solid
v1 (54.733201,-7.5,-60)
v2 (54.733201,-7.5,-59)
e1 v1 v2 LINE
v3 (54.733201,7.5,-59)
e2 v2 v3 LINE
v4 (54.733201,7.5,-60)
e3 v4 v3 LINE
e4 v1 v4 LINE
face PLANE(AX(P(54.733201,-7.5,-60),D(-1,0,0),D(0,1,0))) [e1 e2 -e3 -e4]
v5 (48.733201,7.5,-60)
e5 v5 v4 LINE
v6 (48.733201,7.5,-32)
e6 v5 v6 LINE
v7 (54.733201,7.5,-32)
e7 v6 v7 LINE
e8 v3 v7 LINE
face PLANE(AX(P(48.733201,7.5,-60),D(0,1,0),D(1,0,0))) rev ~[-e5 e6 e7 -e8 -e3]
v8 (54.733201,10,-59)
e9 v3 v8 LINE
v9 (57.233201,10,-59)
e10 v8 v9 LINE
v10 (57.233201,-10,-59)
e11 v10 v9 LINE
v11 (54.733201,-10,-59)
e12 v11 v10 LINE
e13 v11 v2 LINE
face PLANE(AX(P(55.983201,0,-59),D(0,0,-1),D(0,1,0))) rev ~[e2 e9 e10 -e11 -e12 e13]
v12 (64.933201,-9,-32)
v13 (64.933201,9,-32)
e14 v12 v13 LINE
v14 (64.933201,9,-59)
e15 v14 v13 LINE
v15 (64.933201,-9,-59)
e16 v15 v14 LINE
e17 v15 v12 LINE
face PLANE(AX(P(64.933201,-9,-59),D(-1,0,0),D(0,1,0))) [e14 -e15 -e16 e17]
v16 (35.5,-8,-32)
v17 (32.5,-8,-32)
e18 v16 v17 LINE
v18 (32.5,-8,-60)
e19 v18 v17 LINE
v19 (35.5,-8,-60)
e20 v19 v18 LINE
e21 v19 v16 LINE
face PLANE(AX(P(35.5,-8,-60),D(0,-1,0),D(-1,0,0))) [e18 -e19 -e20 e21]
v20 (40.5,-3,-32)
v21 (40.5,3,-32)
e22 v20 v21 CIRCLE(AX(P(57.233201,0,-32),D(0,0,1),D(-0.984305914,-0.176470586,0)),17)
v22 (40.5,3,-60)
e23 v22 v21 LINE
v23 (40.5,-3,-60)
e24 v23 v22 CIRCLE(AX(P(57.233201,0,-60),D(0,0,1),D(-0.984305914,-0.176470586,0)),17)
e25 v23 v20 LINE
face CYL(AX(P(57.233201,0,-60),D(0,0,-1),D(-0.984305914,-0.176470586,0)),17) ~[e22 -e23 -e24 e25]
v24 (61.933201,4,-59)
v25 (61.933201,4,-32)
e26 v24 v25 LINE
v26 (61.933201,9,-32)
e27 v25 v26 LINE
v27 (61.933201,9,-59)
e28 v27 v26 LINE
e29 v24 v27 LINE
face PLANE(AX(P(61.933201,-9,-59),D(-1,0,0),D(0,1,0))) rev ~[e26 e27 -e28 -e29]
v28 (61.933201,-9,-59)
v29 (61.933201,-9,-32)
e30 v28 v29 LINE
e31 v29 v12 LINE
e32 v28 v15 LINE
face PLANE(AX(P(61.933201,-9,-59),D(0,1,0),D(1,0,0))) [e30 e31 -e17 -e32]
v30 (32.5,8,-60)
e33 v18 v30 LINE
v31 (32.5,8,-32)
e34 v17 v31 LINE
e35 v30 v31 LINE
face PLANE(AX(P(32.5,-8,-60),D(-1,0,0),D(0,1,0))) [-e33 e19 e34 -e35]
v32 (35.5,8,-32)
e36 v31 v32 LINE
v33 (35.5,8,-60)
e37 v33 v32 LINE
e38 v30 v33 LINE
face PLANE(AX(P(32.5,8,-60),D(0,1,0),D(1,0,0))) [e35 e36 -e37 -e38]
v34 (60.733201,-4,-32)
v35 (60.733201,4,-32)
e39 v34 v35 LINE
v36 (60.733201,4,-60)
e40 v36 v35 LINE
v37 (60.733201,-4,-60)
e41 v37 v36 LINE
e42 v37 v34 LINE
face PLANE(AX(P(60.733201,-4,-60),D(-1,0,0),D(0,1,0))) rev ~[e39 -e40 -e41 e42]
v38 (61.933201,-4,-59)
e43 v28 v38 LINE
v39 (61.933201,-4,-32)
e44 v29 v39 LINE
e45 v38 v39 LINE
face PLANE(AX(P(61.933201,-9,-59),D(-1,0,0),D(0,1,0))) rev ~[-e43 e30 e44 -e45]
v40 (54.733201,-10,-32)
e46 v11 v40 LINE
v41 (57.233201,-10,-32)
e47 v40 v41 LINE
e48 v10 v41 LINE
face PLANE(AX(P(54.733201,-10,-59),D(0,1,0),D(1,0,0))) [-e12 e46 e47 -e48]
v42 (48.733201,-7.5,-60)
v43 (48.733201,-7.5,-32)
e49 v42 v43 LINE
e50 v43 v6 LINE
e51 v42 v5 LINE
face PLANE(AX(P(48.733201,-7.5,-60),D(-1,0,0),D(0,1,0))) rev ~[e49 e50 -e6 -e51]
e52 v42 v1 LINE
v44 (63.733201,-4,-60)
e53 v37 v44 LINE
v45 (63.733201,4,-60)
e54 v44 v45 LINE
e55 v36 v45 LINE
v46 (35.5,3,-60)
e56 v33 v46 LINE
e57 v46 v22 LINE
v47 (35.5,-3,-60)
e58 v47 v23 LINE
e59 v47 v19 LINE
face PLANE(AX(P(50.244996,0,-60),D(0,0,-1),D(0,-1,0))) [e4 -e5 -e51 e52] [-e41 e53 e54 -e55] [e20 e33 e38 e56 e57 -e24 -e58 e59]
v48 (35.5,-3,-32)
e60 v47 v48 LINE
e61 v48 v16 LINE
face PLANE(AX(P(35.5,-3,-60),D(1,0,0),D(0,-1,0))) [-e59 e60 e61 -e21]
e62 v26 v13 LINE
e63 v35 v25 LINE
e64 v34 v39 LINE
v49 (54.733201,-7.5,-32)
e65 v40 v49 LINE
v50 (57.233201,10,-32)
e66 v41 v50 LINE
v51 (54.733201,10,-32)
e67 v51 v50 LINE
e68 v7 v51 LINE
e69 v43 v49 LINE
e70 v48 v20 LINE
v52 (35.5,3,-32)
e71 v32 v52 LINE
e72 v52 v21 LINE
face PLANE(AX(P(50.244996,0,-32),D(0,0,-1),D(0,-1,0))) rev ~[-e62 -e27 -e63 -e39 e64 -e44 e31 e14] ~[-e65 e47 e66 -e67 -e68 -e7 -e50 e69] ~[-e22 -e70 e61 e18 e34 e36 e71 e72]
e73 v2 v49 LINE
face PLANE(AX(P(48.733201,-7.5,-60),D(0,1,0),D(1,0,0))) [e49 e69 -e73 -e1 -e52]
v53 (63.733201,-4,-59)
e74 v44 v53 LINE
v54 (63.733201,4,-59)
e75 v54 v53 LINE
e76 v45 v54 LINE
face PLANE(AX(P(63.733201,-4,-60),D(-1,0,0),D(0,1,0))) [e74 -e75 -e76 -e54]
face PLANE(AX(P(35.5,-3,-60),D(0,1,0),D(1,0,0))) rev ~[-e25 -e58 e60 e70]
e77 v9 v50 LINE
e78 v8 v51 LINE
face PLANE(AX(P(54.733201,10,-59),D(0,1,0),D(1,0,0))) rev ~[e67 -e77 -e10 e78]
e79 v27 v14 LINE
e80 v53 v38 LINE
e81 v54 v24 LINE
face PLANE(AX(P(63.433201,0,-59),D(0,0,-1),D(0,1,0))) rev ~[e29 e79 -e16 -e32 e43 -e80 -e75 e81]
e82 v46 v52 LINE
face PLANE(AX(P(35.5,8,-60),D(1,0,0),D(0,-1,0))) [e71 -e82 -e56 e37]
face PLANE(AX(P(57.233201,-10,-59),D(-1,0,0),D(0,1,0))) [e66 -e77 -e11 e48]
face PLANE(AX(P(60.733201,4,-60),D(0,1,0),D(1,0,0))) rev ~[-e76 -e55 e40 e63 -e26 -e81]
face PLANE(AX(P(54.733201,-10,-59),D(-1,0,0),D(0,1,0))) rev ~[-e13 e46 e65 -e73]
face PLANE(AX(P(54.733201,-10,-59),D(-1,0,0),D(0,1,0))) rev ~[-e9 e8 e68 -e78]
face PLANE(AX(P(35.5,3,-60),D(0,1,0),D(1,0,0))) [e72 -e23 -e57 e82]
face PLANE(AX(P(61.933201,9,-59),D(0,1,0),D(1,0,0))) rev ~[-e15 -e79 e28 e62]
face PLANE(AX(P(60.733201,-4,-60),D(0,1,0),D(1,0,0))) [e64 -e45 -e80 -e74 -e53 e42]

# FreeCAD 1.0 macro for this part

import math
import FreeCAD as App
import Part
import Sketcher
Q = App.Units.Quantity


def add_polygon(sketch, points):
    """Adds a closed chain of lines whose ends are joined by coincident constraints."""
    first, n = sketch.GeometryCount, len(points)
    for a, b in zip(points, points[1:] + points[:1]):
        sketch.addGeometry(Part.LineSegment(App.Vector(*a, 0), App.Vector(*b, 0)), False)
    for i in range(n):
        sketch.addConstraint(Sketcher.Constraint("Coincident", first + i, 2, first + (i + 1) % n, 1))

doc = App.newDocument("Part")
body = doc.addObject("PartDesign::Body", "Body")

# Sketch on XY plane
sketch1 = body.newObject("Sketcher::SketchObject", "Sketch")
sketch1.AttachmentSupport = (doc.getObject("XY_Plane"), [""])
sketch1.MapMode = "FlatFace"
sketch1.addGeometry([
    Part.LineSegment(App.Vector(-8, -3, 0), App.Vector(-3, -3, 0)),  # 0
    Part.LineSegment(App.Vector(-3, -3, 0), App.Vector(-3, -8, 0)),  # 1
    Part.ArcOfCircle(Part.Circle(App.Vector(0, -24.7, 0), App.Vector(0, 0, 1), 17), math.radians(100), math.radians(440)),  # 2
    Part.LineSegment(App.Vector(3, -8, 0), App.Vector(3, -3, 0)),  # 3
    Part.LineSegment(App.Vector(3, -3, 0), App.Vector(8, -3, 0)),  # 4
    Part.LineSegment(App.Vector(8, -3, 0), App.Vector(8, 0, 0)),  # 5
    Part.LineSegment(App.Vector(8, 0, 0), App.Vector(-8, 0, 0)),  # 6
    Part.LineSegment(App.Vector(-8, 0, 0), App.Vector(-8, -3, 0)),  # 7
], False)
sketch1.addConstraint([
    Sketcher.Constraint("Coincident", 0, 2, 1, 1),
    Sketcher.Constraint("Coincident", 1, 2, 2, 1),
    Sketcher.Constraint("Coincident", 2, 2, 3, 1),
    Sketcher.Constraint("Coincident", 3, 2, 4, 1),
    Sketcher.Constraint("Coincident", 4, 2, 5, 1),
    Sketcher.Constraint("Coincident", 5, 2, 6, 1),
    Sketcher.Constraint("Coincident", 6, 2, 7, 1),
    Sketcher.Constraint("Coincident", 7, 2, 0, 1),
    Sketcher.Constraint("Horizontal", 0),
    Sketcher.Constraint("Vertical", 1),
    Sketcher.Constraint("Vertical", 3),
    Sketcher.Constraint("Horizontal", 4),
    Sketcher.Constraint("Vertical", 5),
    Sketcher.Constraint("Horizontal", 6),
    Sketcher.Constraint("Vertical", 7),
    Sketcher.Constraint("Symmetric", 5, 2, 6, 2, -1, 1),
    Sketcher.Constraint("Symmetric", 1, 2, 2, 2, -2),
    Sketcher.Constraint("Horizontal", 0, 2, 3, 2),
    Sketcher.Constraint("Equal", 4, 1),
    Sketcher.Constraint("Radius", 2, Q("17 mm")),
    Sketcher.Constraint("DistanceX", 0, 1, 0, 2, Q("5 mm")),
    Sketcher.Constraint("DistanceX", 6, 2, 6, 1, Q("16 mm")),
    Sketcher.Constraint("DistanceY", 5, 1, 5, 2, Q("3 mm")),
])
pad1 = body.newObject("PartDesign::Pad", "Pad")
pad1.Profile = sketch1
pad1.Length = 28

# Sketch on XY plane
sketch2 = body.newObject("Sketcher::SketchObject", "Sketch001")
sketch2.AttachmentSupport = (doc.getObject("XY_Plane"), [""])
sketch2.MapMode = "FlatFace"
add_polygon(sketch2, [(-4, -31.2), (-4, -28.2), (4, -28.2), (4, -31.2)])  # lines 0-3
add_polygon(sketch2, [(-7.5, -22.2), (-7.5, -16.2), (7.5, -16.2), (7.5, -22.2)])  # lines 4-7
sketch2.addConstraint([
    Sketcher.Constraint("Vertical", 0),
    Sketcher.Constraint("Horizontal", 1),
    Sketcher.Constraint("Vertical", 2),
    Sketcher.Constraint("Horizontal", 3),
    Sketcher.Constraint("Vertical", 4),
    Sketcher.Constraint("Horizontal", 5),
    Sketcher.Constraint("Vertical", 6),
    Sketcher.Constraint("Horizontal", 7),
    Sketcher.Constraint("DistanceX", 1, 1, 1, 2, Q("8 mm")),
    Sketcher.Constraint("DistanceX", 5, 1, 5, 2, Q("15 mm")),
    Sketcher.Constraint("DistanceY", 0, 1, 0, 2, Q("3 mm")),
    Sketcher.Constraint("DistanceY", 4, 1, 4, 2, Q("6 mm")),
    Sketcher.Constraint("DistanceX", 0, 2, -1, 1, Q("4 mm")),
    Sketcher.Constraint("DistanceY", 0, 2, 4, 2, Q("12 mm")),
    Sketcher.Constraint("DistanceX", 4, 2, -1, 1, Q("7.5 mm")),
    Sketcher.Constraint("DistanceY", 0, 2, -1, 1, Q("28.233201 mm")),
])
pocket1 = body.newObject("PartDesign::Pocket", "Pocket")
pocket1.Profile = sketch2
pocket1.Type = "ThroughAll"
pocket1.Reversed = True

# Sketch on XY plane
sketch3 = body.newObject("Sketcher::SketchObject", "Sketch002")
sketch3.AttachmentSupport = (doc.getObject("XY_Plane"), [""])
sketch3.MapMode = "FlatFace"
sketch3.AttachmentOffset = App.Placement(App.Vector(0, 0, 1), App.Rotation())
add_polygon(sketch3, [(-10, -24.7), (-10, -22.2), (10, -22.2), (10, -24.7)])  # lines 0-3
add_polygon(sketch3, [(-9, -32.4), (-9, -29.4), (9, -29.4), (9, -32.4)])  # lines 4-7
sketch3.addConstraint([
    Sketcher.Constraint("Vertical", 0),
    Sketcher.Constraint("Horizontal", 1),
    Sketcher.Constraint("Vertical", 2),
    Sketcher.Constraint("Horizontal", 3),
    Sketcher.Constraint("Vertical", 4),
    Sketcher.Constraint("Horizontal", 5),
    Sketcher.Constraint("Vertical", 6),
    Sketcher.Constraint("Horizontal", 7),
    Sketcher.Constraint("DistanceX", 1, 1, 1, 2, Q("20 mm")),
    Sketcher.Constraint("DistanceX", 5, 1, 5, 2, Q("18 mm")),
    Sketcher.Constraint("DistanceY", 4, 1, 4, 2, Q("3 mm")),
    Sketcher.Constraint("DistanceY", 0, 1, 0, 2, Q("2.5 mm")),
    Sketcher.Constraint("DistanceX", 0, 2, -1, 1, Q("10 mm")),
    Sketcher.Constraint("DistanceX", 4, 2, -1, 1, Q("9 mm")),
    Sketcher.Constraint("DistanceY", 4, 2, 3, 2, Q("4.7 mm")),
    Sketcher.Constraint("DistanceY", 0, 2, -1, 1, Q("22.233201 mm")),
])
pocket2 = body.newObject("PartDesign::Pocket", "Pocket001")
pocket2.Profile = sketch3
pocket2.Type = "ThroughAll"
pocket2.Reversed = True
body2 = doc.addObject("PartDesign::Body", "Body001")
doc.recompute()

body.Placement = App.Placement(App.Vector(32.5, 0, -60), App.Rotation(App.Vector(0, 0, 1), 90))
boolean = body2.newObject("PartDesign::Boolean", "Boolean")
boolean.Type = "Fuse"
boolean.addObjects([body])

doc.recompute()
